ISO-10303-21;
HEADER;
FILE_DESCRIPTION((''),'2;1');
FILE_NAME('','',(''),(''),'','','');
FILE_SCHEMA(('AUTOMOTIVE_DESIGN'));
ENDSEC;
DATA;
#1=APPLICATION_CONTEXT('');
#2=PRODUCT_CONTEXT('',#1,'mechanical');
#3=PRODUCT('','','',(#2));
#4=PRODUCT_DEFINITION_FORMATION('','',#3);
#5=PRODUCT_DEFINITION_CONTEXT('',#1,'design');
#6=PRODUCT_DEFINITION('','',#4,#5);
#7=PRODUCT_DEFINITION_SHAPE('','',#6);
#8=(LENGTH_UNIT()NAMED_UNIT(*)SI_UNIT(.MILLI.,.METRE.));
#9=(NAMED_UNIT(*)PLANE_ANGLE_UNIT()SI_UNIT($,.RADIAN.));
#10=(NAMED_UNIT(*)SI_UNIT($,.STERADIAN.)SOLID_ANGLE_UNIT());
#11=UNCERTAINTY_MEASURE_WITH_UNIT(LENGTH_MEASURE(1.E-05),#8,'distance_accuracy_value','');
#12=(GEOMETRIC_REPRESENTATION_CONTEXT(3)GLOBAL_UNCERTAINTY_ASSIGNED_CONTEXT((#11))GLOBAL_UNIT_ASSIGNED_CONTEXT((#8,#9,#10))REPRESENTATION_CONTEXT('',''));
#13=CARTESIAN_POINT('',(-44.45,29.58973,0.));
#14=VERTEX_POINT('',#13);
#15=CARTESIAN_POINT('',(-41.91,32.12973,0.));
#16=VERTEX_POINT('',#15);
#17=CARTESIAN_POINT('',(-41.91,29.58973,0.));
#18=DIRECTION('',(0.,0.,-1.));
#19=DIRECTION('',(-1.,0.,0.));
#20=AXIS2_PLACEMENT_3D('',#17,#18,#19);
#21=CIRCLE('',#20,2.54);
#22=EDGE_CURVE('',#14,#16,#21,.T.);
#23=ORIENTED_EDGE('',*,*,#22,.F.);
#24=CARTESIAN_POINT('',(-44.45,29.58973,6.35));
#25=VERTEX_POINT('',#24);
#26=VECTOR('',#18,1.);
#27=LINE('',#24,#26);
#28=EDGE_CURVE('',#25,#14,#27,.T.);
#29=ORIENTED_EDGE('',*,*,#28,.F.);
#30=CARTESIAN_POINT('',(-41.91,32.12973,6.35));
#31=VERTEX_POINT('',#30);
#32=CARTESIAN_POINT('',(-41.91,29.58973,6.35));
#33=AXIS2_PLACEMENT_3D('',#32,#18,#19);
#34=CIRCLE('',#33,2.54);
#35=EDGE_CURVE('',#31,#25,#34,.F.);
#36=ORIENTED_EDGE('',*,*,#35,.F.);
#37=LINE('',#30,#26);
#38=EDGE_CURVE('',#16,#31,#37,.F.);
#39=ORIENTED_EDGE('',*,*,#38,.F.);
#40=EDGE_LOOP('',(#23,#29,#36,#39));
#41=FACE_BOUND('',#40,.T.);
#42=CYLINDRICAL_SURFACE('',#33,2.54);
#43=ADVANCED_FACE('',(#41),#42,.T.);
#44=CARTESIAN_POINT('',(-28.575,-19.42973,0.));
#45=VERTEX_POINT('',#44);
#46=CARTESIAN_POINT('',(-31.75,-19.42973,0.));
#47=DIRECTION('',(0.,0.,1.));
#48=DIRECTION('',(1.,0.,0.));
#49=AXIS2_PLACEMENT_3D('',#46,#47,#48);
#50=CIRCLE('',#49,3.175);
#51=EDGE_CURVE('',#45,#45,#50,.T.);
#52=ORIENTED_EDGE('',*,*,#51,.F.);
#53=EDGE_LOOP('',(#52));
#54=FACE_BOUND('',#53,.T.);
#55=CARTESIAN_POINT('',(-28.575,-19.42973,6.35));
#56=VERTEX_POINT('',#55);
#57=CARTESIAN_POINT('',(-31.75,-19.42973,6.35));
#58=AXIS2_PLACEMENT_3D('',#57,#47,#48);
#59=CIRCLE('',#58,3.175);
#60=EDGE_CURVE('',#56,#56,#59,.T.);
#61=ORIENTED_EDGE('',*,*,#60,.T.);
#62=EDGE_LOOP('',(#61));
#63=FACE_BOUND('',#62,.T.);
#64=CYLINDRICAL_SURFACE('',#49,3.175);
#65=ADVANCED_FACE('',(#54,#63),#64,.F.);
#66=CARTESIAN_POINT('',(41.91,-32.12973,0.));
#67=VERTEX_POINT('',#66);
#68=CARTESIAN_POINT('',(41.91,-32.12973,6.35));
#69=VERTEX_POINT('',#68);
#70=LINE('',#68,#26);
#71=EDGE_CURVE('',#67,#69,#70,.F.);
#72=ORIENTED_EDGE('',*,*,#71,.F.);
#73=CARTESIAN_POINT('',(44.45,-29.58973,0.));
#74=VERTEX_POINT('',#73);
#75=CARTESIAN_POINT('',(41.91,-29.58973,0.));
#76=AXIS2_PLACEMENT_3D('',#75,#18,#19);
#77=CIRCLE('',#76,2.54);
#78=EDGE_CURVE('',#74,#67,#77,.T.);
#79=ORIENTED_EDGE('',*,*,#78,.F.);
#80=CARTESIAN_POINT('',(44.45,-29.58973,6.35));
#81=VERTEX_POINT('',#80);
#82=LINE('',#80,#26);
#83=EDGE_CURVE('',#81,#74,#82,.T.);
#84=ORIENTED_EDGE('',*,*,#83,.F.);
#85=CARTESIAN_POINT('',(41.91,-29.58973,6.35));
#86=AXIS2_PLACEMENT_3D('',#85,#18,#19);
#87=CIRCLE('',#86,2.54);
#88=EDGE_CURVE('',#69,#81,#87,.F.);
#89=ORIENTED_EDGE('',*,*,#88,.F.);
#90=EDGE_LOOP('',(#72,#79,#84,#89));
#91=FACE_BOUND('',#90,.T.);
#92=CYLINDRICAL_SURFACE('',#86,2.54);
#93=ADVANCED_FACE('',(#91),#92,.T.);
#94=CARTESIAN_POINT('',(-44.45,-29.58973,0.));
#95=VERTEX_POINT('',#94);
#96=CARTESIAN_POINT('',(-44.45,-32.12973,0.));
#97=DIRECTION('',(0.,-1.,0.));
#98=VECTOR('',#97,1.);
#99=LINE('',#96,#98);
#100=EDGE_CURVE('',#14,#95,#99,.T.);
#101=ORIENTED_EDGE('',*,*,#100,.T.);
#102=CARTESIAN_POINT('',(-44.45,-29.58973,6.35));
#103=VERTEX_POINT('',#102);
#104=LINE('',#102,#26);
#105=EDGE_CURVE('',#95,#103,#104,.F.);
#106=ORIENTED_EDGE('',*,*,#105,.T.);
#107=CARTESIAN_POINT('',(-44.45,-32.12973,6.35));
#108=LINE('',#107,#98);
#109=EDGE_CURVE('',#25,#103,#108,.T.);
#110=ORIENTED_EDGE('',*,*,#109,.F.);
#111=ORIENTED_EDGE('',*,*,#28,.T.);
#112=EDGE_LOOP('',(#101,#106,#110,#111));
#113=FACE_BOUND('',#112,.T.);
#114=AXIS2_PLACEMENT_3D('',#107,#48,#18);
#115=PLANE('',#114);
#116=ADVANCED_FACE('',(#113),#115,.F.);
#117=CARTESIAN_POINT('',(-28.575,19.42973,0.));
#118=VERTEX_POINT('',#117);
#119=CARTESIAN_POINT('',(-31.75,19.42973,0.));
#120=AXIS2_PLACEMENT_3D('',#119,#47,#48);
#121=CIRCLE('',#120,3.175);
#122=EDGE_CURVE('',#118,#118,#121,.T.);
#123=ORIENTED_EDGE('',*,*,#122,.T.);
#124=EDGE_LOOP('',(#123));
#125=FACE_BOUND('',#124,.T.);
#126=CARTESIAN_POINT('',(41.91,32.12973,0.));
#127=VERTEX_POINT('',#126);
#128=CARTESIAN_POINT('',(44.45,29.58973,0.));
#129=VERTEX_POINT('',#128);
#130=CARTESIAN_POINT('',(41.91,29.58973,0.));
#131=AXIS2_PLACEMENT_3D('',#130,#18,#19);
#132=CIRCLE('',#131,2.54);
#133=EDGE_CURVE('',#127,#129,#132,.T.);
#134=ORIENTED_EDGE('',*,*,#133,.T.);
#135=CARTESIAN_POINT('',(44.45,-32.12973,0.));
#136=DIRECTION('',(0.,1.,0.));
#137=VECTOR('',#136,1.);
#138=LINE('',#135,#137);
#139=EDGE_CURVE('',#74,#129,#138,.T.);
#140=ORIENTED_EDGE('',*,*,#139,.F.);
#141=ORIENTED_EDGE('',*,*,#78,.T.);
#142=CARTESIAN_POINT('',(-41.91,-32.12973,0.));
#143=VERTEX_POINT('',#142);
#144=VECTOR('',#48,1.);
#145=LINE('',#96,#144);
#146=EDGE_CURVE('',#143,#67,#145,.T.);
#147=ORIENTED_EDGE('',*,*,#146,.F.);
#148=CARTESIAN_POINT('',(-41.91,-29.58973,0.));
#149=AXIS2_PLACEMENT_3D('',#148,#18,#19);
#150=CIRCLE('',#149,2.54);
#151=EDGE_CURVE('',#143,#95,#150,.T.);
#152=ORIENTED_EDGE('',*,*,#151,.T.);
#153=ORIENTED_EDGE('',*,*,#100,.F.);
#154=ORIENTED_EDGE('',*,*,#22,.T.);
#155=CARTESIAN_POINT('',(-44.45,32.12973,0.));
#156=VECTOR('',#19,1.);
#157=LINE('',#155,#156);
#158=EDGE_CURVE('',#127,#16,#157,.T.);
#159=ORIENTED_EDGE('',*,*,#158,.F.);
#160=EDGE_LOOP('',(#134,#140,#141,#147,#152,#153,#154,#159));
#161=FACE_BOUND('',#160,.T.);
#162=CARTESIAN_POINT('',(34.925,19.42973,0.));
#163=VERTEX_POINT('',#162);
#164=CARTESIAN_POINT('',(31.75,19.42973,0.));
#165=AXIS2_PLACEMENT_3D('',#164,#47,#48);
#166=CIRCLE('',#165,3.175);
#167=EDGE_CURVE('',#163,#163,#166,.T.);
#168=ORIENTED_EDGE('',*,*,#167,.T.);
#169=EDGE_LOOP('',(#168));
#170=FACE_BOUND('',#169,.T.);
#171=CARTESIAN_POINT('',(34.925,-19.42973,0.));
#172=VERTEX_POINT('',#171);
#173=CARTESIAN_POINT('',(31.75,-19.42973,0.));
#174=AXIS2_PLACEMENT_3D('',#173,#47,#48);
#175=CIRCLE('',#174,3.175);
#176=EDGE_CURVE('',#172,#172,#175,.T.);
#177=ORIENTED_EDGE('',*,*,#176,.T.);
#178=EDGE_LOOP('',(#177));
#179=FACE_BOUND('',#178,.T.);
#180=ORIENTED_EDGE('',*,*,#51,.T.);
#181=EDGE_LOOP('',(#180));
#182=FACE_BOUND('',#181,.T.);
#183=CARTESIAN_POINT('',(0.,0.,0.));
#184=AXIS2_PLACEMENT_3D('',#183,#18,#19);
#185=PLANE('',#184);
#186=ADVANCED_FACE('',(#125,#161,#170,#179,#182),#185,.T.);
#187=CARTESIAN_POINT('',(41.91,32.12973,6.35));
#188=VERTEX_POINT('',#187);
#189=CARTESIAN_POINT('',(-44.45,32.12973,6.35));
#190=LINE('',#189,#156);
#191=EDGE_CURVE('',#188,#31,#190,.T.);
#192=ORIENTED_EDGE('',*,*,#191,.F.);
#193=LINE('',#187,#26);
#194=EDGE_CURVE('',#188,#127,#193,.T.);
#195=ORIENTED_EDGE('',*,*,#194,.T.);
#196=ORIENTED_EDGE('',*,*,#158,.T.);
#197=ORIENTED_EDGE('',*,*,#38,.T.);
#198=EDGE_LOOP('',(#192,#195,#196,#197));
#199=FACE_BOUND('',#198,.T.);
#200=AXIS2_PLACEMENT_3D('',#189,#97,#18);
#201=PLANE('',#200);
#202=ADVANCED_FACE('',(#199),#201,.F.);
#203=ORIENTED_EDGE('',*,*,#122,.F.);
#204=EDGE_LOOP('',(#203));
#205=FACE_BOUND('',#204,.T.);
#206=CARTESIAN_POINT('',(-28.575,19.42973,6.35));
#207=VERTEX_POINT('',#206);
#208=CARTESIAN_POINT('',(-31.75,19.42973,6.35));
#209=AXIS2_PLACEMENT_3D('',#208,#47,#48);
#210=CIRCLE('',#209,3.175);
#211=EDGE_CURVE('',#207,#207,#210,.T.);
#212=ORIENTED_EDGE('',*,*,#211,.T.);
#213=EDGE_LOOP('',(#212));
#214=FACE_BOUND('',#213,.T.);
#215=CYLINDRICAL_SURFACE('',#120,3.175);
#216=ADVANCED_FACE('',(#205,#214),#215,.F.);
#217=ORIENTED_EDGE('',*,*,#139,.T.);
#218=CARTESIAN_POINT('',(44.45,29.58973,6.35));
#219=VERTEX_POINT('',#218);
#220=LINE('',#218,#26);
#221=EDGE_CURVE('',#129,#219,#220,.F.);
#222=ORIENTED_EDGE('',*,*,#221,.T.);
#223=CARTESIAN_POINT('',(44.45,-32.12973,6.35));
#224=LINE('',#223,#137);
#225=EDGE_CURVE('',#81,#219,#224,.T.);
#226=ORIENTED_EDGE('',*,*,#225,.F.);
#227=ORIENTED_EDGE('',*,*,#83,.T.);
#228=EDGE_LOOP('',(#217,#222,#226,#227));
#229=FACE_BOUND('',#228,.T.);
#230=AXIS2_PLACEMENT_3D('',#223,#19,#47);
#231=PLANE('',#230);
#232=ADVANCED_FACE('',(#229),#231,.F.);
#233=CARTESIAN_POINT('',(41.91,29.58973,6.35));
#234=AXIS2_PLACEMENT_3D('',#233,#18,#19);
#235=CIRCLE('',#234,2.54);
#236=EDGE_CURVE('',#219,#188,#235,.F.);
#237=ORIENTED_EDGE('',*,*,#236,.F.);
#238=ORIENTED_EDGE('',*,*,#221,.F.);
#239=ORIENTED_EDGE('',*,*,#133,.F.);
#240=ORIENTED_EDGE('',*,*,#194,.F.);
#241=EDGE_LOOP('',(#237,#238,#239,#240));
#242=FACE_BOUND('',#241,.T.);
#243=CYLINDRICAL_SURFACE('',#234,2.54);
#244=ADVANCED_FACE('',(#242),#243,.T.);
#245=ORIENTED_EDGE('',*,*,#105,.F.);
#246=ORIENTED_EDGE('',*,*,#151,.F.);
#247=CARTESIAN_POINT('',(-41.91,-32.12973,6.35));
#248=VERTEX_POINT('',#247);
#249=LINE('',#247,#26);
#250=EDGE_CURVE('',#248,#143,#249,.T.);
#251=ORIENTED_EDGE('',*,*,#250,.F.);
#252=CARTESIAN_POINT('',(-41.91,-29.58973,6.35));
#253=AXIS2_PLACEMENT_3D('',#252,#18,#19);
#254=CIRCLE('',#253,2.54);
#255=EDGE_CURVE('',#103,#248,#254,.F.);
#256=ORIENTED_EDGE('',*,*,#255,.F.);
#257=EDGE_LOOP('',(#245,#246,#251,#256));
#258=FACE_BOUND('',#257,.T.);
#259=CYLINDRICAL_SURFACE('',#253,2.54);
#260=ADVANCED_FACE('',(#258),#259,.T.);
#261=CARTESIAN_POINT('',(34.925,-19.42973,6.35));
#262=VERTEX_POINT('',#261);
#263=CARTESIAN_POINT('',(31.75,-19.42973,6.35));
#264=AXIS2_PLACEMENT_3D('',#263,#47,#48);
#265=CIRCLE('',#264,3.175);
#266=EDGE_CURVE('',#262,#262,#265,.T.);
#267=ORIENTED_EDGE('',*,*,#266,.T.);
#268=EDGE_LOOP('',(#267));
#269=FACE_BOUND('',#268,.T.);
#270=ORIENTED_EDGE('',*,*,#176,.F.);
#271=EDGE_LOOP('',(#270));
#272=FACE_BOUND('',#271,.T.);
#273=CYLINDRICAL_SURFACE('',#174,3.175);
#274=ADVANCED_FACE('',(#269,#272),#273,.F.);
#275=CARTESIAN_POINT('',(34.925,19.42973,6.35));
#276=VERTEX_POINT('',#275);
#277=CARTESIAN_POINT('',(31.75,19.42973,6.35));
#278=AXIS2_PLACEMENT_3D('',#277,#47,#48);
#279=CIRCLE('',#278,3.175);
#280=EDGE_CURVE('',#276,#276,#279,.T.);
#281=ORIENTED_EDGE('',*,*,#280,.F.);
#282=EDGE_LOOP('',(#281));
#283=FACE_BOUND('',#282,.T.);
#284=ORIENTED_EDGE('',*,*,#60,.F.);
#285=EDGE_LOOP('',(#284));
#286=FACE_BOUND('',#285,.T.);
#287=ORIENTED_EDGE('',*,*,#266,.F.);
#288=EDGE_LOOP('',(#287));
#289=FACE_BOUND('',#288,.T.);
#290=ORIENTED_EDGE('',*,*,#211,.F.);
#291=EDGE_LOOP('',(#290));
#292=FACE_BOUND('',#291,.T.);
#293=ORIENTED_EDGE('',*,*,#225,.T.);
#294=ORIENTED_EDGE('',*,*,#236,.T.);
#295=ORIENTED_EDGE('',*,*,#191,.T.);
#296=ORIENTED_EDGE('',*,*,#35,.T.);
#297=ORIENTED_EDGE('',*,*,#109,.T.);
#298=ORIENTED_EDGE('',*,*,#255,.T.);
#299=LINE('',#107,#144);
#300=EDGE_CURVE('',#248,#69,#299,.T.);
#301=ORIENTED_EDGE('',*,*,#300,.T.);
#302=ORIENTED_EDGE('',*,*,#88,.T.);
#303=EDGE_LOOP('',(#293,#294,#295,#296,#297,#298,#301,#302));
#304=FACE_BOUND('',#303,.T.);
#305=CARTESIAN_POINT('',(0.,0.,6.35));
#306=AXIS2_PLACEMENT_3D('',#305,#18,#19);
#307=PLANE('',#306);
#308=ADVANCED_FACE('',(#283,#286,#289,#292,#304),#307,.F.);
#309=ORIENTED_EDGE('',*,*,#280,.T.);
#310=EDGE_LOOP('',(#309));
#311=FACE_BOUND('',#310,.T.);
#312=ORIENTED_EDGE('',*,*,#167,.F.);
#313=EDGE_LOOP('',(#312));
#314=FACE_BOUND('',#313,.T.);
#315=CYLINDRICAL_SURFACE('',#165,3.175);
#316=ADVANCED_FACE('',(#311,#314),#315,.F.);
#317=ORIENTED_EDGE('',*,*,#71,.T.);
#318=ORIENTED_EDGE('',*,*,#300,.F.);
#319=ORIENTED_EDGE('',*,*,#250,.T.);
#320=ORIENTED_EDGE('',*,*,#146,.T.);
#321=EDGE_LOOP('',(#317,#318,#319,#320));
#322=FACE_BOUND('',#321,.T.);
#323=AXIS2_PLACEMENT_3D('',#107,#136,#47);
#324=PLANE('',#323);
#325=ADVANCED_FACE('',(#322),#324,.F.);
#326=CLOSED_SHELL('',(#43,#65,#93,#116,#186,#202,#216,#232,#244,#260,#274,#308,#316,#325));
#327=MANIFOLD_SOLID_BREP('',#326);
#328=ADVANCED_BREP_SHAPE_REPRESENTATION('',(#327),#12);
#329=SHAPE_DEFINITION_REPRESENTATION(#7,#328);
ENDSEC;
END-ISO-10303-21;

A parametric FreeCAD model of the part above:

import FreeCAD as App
import Part
import Sketcher
from FreeCAD import Vector
Q = App.Units.Quantity


def edges_at(feature, points):
    """Names of the edges that pass closest to the given points."""
    edges = feature.Shape.Edges
    near = lambda p: min(range(len(edges)), key=lambda i: edges[i].distToShape(Part.Vertex(*p))[0])
    return sorted({f"Edge{near(p) + 1}" for p in points})

doc = App.newDocument("Part")
body = doc.addObject("PartDesign::Body", "Body")

sketch1 = body.newObject("Sketcher::SketchObject", "Sketch")
sketch1.AttachmentSupport = (doc.getObject("XY_Plane"), [""])
sketch1.MapMode = "FlatFace"
sketch1.addGeometry([
    Part.LineSegment(Vector(-44.45, 32.12973, 0), Vector(-44.45, -32.12973, 0)),
    Part.LineSegment(Vector(-44.45, -32.12973, 0), Vector(44.45, -32.12973, 0)),
    Part.LineSegment(Vector(44.45, -32.12973, 0), Vector(44.45, 32.12973, 0)),
    Part.LineSegment(Vector(44.45, 32.12973, 0), Vector(-44.45, 32.12973, 0)),
], False)
sketch1.addConstraint([
    Sketcher.Constraint("Coincident", 0, 2, 1, 1),
    Sketcher.Constraint("Coincident", 1, 2, 2, 1),
    Sketcher.Constraint("Coincident", 2, 2, 3, 1),
    Sketcher.Constraint("Coincident", 3, 2, 0, 1),
    Sketcher.Constraint("Vertical", 0),
    Sketcher.Constraint("Horizontal", 1),
    Sketcher.Constraint("Vertical", 2),
    Sketcher.Constraint("Horizontal", 3),
    Sketcher.Constraint("Symmetric", 0, 2, 2, 2, -1, 1),
    Sketcher.Constraint("DistanceX", 1, 1, 1, 2, Q("3.5 in")),
    Sketcher.Constraint("DistanceY", 0, 2, 0, 1, Q("2.5299 in")),
])
pad1 = body.newObject("PartDesign::Pad", "Pad")
pad1.Profile = sketch1
pad1.Length = Q("0.25 in")
doc.recompute()

fillet = body.newObject("PartDesign::Fillet", "Fillet")
fillet.Base = (pad1, edges_at(pad1, [
    (44.45, -32.13, 3.175),
    (-44.45, -32.13, 3.175),
    (-44.45, 32.13, 3.175),
    (44.45, 32.13, 3.175),
]))
fillet.Radius = Q("0.1 in")

sketch2 = body.newObject("Sketcher::SketchObject", "Sketch001")
sketch2.AttachmentSupport = (doc.getObject("XY_Plane"), [""])
sketch2.MapMode = "FlatFace"
sketch2.AttachmentOffset = App.Placement(Vector(0, 0, 0.25 * 25.4), App.Rotation())
sketch2.addGeometry([
    Part.Circle(Vector(-31.75, 19.42973, 0), Vector(0, 0, 1), 3.175),
    Part.Circle(Vector(31.75, 19.42973, 0), Vector(0, 0, 1), 3.175),
    Part.Circle(Vector(31.75, -19.42973, 0), Vector(0, 0, 1), 3.175),
    Part.Circle(Vector(-31.75, -19.42973, 0), Vector(0, 0, 1), 3.175),
], False)
sketch2.addConstraint([
    Sketcher.Constraint("Equal", 0, 1),
    Sketcher.Constraint("Equal", 1, 2),
    Sketcher.Constraint("Equal", 2, 3),
    Sketcher.Constraint("Symmetric", 0, 3, 2, 3, -1, 1),
    Sketcher.Constraint("Symmetric", 1, 3, 3, 3, -1, 1),
    Sketcher.Constraint("Symmetric", 0, 3, 1, 3, -2),
    Sketcher.Constraint("Diameter", 0, Q("0.25 in")),
    Sketcher.Constraint("DistanceX", 0, 3, 1, 3, Q("2.5 in")),
    Sketcher.Constraint("DistanceY", 2, 3, 1, 3, Q("1.5299 in")),
])
pocket1 = body.newObject("PartDesign::Pocket", "Pocket")
pocket1.Profile = sketch2
pocket1.Length = Q("0.25 in")

doc.recompute()
